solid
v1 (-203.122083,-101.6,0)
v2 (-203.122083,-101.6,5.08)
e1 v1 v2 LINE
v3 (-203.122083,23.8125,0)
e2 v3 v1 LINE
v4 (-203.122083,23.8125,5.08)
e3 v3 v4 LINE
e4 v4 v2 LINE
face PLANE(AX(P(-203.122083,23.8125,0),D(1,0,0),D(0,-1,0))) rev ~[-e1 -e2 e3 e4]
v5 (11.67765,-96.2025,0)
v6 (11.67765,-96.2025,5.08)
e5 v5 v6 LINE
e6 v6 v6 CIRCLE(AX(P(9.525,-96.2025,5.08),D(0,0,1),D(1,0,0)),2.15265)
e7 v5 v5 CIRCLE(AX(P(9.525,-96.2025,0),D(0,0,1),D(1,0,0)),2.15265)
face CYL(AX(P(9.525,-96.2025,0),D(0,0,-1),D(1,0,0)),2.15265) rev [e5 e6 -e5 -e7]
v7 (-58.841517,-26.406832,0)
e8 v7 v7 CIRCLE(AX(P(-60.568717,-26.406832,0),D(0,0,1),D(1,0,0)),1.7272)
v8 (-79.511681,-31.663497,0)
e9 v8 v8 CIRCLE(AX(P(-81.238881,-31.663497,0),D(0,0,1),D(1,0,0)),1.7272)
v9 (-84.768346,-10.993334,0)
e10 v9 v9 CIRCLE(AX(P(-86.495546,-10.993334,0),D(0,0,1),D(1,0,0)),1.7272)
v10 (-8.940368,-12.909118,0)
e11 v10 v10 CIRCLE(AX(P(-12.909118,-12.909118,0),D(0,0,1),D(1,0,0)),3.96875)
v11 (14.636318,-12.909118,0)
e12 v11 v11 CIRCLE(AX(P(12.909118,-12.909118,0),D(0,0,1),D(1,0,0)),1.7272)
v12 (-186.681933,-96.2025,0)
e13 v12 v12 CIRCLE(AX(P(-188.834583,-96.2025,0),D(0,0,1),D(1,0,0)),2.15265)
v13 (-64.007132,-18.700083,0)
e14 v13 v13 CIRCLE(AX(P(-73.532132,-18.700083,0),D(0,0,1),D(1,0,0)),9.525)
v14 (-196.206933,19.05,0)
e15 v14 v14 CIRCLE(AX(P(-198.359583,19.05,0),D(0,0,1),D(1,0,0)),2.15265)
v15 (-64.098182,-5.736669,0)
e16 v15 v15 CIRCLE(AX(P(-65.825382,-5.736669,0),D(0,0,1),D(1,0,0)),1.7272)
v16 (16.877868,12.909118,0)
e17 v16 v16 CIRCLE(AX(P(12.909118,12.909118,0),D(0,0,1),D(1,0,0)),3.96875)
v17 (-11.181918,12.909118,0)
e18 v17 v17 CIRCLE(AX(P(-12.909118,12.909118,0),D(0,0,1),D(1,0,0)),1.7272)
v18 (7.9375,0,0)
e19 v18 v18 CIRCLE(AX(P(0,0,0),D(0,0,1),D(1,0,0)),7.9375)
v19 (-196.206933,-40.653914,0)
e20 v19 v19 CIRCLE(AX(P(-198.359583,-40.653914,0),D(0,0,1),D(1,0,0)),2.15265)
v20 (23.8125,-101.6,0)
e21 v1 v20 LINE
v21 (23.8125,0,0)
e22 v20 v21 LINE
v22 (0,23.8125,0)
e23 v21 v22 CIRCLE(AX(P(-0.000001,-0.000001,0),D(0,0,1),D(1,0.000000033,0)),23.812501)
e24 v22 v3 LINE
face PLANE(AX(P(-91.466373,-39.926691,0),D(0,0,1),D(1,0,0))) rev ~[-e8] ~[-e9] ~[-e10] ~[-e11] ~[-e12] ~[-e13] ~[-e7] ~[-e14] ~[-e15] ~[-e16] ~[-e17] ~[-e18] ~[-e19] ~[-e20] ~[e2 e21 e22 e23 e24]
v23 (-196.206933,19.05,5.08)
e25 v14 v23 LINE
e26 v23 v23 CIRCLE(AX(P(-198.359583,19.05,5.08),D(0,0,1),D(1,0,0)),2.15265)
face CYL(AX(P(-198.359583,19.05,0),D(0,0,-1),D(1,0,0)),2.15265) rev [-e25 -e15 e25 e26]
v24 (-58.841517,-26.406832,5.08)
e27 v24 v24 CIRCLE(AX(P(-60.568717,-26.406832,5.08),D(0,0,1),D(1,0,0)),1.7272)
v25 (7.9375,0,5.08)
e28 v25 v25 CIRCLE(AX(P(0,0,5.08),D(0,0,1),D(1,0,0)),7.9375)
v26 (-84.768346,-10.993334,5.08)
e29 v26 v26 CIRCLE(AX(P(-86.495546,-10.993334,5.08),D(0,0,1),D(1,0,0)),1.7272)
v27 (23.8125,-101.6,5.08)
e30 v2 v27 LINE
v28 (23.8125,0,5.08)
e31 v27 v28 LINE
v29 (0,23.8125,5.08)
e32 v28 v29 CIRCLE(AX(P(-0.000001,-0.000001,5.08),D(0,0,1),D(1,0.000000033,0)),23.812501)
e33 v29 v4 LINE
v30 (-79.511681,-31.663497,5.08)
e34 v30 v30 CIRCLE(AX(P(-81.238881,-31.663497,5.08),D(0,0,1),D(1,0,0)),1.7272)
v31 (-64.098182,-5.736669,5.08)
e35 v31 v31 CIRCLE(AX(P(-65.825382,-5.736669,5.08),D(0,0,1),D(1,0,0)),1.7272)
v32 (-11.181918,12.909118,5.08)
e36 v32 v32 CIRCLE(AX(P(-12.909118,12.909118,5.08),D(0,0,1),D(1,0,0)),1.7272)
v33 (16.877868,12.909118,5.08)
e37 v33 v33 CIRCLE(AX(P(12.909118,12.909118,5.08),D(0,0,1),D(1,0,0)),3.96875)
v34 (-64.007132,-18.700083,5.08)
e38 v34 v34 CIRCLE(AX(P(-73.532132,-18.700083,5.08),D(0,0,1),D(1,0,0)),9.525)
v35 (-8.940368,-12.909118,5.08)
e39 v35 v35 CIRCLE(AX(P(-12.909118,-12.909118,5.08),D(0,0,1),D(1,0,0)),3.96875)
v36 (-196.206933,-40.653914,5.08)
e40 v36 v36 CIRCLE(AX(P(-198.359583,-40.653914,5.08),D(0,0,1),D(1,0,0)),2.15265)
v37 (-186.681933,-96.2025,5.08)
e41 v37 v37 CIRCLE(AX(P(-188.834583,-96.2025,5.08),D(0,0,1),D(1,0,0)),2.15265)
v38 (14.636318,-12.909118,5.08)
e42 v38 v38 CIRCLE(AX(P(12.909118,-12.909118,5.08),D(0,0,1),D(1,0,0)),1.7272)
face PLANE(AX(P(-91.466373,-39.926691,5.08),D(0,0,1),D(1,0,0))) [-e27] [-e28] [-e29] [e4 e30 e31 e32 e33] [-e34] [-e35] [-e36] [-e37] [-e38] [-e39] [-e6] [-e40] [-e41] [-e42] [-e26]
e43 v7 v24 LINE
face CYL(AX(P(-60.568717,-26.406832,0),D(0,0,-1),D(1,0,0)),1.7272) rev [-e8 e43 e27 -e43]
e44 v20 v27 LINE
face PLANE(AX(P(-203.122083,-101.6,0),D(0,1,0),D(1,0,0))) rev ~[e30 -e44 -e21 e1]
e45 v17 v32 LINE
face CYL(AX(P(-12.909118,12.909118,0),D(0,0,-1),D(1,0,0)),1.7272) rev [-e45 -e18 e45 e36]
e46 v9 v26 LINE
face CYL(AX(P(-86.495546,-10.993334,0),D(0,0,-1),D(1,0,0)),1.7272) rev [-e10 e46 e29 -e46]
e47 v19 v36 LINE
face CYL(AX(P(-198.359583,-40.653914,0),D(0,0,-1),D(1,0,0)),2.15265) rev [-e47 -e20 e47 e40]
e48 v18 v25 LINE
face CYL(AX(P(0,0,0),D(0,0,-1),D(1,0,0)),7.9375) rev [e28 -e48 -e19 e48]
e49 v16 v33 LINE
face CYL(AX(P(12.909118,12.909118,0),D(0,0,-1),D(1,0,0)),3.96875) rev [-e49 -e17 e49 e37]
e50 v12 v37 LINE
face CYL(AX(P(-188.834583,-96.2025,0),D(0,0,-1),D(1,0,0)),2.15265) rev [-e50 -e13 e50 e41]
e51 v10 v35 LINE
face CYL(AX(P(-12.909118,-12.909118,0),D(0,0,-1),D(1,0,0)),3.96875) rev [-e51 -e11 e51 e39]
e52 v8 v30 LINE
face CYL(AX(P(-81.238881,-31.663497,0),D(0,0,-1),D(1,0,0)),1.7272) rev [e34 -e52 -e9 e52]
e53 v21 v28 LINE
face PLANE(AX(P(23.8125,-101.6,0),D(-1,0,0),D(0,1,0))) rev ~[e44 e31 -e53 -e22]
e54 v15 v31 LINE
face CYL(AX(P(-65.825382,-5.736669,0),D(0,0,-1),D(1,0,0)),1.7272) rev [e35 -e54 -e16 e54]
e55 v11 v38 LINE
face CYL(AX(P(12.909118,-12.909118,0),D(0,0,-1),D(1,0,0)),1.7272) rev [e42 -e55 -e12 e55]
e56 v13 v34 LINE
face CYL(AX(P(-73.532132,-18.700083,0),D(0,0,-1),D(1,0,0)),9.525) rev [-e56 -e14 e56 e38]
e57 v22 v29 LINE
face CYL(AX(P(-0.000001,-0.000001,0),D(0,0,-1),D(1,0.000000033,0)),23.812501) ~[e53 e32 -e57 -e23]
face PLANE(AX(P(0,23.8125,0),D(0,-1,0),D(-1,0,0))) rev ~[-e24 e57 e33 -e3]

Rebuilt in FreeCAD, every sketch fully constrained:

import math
import FreeCAD as App
import Part
import Sketcher

V = App.Vector
Q = App.Units.Quantity

doc = App.newDocument("Part")
params = doc.addObject("Spreadsheet::Sheet", "Params")
for row, (alias, value) in enumerate([
    ("sketch1_diameter", "0.75 in"),
    ("sketch1_height", "4 in"),
    ("sketch1_diameter2", "0.136 in"),
    ("sketch1_diameter3", "0.3125 in"),
    ("sketch1_diameter4", "0.625 in"),
    ("pad1_length", "0.2 in"),
], start=1):
    params.set(f"A{row}", alias)
    params.set(f"B{row}", "=" + value)
    params.setAlias(f"B{row}", alias)

body = doc.addObject("PartDesign::Body", "Body")

# Sketch on XY plane
sketch1 = body.newObject("Sketcher::SketchObject", "Sketch")
sketch1.AttachmentSupport = (doc.getObject("XY_Plane"), [""])
sketch1.MapMode = "FlatFace"
sketch1.addGeometry(Part.LineSegment(V(0, 23.8, 0), V(-203.1, 23.8, 0)), False)
sketch1.addGeometry(Part.LineSegment(V(-203.1, 23.8, 0), V(-203.1, -101.6, 0)), False)
sketch1.addGeometry(Part.LineSegment(V(-203.1, -101.6, 0), V(23.8, -101.6, 0)), False)
sketch1.addGeometry(Part.LineSegment(V(23.8, -101.6, 0), V(23.8, 0, 0)), False)
sketch1.addGeometry(Part.ArcOfCircle(Part.Circle(V(0, 0, 0), V(0, 0, 1), 23.8), math.radians(0), math.radians(90)), False)
sketch1.addGeometry(Part.Circle(V(-188.8, -96.2, 0), V(0, 0, 1), 2.2), False)
sketch1.addGeometry(Part.Circle(V(-198.4, -40.7, 0), V(0, 0, 1), 2.2), False)
sketch1.addGeometry(Part.Circle(V(9.5, -96.2, 0), V(0, 0, 1), 2.2), False)
sketch1.addGeometry(Part.Circle(V(-198.4, 19.1, 0), V(0, 0, 1), 2.2), False)
sketch1.addGeometry(Part.Circle(V(-81.2, -31.7, 0), V(0, 0, 1), 1.7), False)
sketch1.addGeometry(Part.Circle(V(-60.6, -26.4, 0), V(0, 0, 1), 1.7), False)
sketch1.addGeometry(Part.Circle(V(-73.5, -18.7, 0), V(0, 0, 1), 9.5), False)
sketch1.addGeometry(Part.Circle(V(-86.5, -11, 0), V(0, 0, 1), 1.7), False)
sketch1.addGeometry(Part.Circle(V(-12.9, -12.9, 0), V(0, 0, 1), 4), False)
sketch1.addGeometry(Part.Circle(V(12.9, -12.9, 0), V(0, 0, 1), 1.7), False)
sketch1.addGeometry(Part.Circle(V(-65.8, -5.7, 0), V(0, 0, 1), 1.7), False)
sketch1.addGeometry(Part.Circle(V(0, 0, 0), V(0, 0, 1), 7.9), False)
sketch1.addGeometry(Part.Circle(V(-12.9, 12.9, 0), V(0, 0, 1), 1.7), False)
sketch1.addGeometry(Part.Circle(V(12.9, 12.9, 0), V(0, 0, 1), 4), False)
sketch1.addConstraint(Sketcher.Constraint("Coincident", 0, 2, 1, 1))
sketch1.addConstraint(Sketcher.Constraint("Coincident", 1, 2, 2, 1))
sketch1.addConstraint(Sketcher.Constraint("Coincident", 2, 2, 3, 1))
sketch1.addConstraint(Sketcher.Constraint("Tangent", 3, 2, 4, 1))
sketch1.addConstraint(Sketcher.Constraint("Tangent", 4, 2, 0, 1))
sketch1.addConstraint(Sketcher.Constraint("Horizontal", 0))
sketch1.addConstraint(Sketcher.Constraint("Vertical", 1))
sketch1.addConstraint(Sketcher.Constraint("Horizontal", 2))
sketch1.addConstraint(Sketcher.Constraint("Vertical", 3))
sketch1.addConstraint(Sketcher.Constraint("Coincident", 4, 3, -1, 1))
sketch1.addConstraint(Sketcher.Constraint("Coincident", 16, 3, -1, 1))
sketch1.addConstraint(Sketcher.Constraint("Equal", 5, 6))
sketch1.addConstraint(Sketcher.Constraint("Equal", 6, 7))
sketch1.addConstraint(Sketcher.Constraint("Equal", 7, 8))
sketch1.addConstraint(Sketcher.Constraint("Equal", 9, 10))
sketch1.addConstraint(Sketcher.Constraint("Equal", 10, 12))
sketch1.addConstraint(Sketcher.Constraint("Equal", 12, 14))
sketch1.addConstraint(Sketcher.Constraint("Equal", 14, 15))
sketch1.addConstraint(Sketcher.Constraint("Equal", 15, 17))
sketch1.addConstraint(Sketcher.Constraint("Equal", 13, 18))
sketch1.addConstraint(Sketcher.Constraint("Symmetric", 14, 3, 17, 3, -1, 1))
sketch1.addConstraint(Sketcher.Constraint("Symmetric", 13, 3, 18, 3, -1, 1))
sketch1.addConstraint(Sketcher.Constraint("Symmetric", 13, 3, 14, 3, -2))
sketch1.addConstraint(Sketcher.Constraint("Horizontal", 5, 3, 7, 3))
sketch1.addConstraint(Sketcher.Constraint("Vertical", 6, 3, 8, 3))
sketch1.addConstraint(Sketcher.Constraint("Diameter", 11, Q("0.75 in")))
sketch1.addConstraint(Sketcher.Constraint("DistanceY", 3, 1, 3, 2, Q("4 in")))
sketch1.addConstraint(Sketcher.Constraint("Diameter", 9, Q("0.136 in")))
sketch1.addConstraint(Sketcher.Constraint("Diameter", 13, Q("0.3125 in")))
sketch1.addConstraint(Sketcher.Constraint("Diameter", 16, Q("0.625 in")))
sketch1.addConstraint(Sketcher.Constraint("Radius", 4, Q("0.9375 in")))
sketch1.addConstraint(Sketcher.Constraint("Diameter", 5, Q("0.1695 in")))
sketch1.addConstraint(Sketcher.Constraint("DistanceY", -1, 1, 8, 3, Q("0.75 in")))
sketch1.addConstraint(Sketcher.Constraint("DistanceX", -1, 1, 7, 3, Q("0.375 in")))
sketch1.addConstraint(Sketcher.Constraint("DistanceX", 6, 3, 5, 3, Q("0.375 in")))
sketch1.addConstraint(Sketcher.Constraint("DistanceX", 0, 2, 8, 3, Q("0.1875 in")))
sketch1.addConstraint(Sketcher.Constraint("DistanceY", 5, 3, 0, 2, Q("4.725 in")))
sketch1.addConstraint(Sketcher.Constraint("DistanceX", 6, 3, 9, 3, 117.120702))
sketch1.addConstraint(Sketcher.Constraint("DistanceX", 10, 3, 13, 3, 47.659599))
sketch1.addConstraint(Sketcher.Constraint("DistanceX", 9, 3, 15, 3, 15.413499))
sketch1.addConstraint(Sketcher.Constraint("DistanceX", 0, 2, 0, 1, 203.122083))
sketch1.addConstraint(Sketcher.Constraint("DistanceY", 15, 3, -1, 1, 5.736669))
sketch1.addConstraint(Sketcher.Constraint("DistanceY", 10, 3, 4, 3, 26.406831))
sketch1.addConstraint(Sketcher.Constraint("DistanceY", 6, 3, 10, 3, 14.247082))
sketch1.addConstraint(Sketcher.Constraint("DistanceX", 9, 3, 11, 3, 7.706749))
sketch1.addConstraint(Sketcher.Constraint("DistanceY", 10, 3, 11, 3, 7.706749))
sketch1.addConstraint(Sketcher.Constraint("DistanceY", 11, 3, 12, 3, 7.706749))
sketch1.addConstraint(Sketcher.Constraint("DistanceX", 12, 3, 10, 3, 25.926829))
sketch1.addConstraint(Sketcher.Constraint("DistanceY", 9, 3, 13, 3, 18.754379))
sketch1.addConstraint(Sketcher.Constraint("DistanceX", 4, 3, 14, 3, 12.909119))
sketch1.addConstraint(Sketcher.Constraint("DistanceY", 9, 3, 15, 3, 25.926828))
sketch1.setExpression("Constraints[25]", "Params.sketch1_diameter")
sketch1.setExpression("Constraints[26]", "Params.sketch1_height")
sketch1.setExpression("Constraints[27]", "Params.sketch1_diameter2")
sketch1.setExpression("Constraints[28]", "Params.sketch1_diameter3")
sketch1.setExpression("Constraints[29]", "Params.sketch1_diameter4")
pad1 = body.newObject("PartDesign::Pad", "Pad")
pad1.Profile = sketch1
pad1.setExpression("Length", "Params.pad1_length")

doc.recompute()
